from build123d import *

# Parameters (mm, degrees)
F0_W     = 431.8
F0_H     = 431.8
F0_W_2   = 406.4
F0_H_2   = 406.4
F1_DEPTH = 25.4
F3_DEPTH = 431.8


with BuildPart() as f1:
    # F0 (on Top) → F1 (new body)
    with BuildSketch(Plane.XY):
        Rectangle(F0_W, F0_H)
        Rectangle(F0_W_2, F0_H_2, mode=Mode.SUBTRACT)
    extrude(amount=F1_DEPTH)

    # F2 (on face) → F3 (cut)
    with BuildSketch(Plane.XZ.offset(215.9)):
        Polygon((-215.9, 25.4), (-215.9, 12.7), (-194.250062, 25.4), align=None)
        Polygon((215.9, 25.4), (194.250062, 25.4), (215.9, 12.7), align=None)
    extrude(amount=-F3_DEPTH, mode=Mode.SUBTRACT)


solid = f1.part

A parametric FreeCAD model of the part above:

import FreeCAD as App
import Part
import Sketcher
from FreeCAD import Vector
Q = App.Units.Quantity

doc = App.newDocument("Part")
body = doc.addObject("PartDesign::Body", "Body")

# Sketch on XY plane
sketch1 = body.newObject("Sketcher::SketchObject", "Sketch")
sketch1.AttachmentSupport = (doc.getObject("XY_Plane"), [""])
sketch1.MapMode = "FlatFace"
sketch1.addGeometry([
    Part.LineSegment(Vector(-216, 216, 0), Vector(-216, -216, 0)),  # 0
    Part.LineSegment(Vector(-216, -216, 0), Vector(216, -216, 0)),  # 1
    Part.LineSegment(Vector(216, -216, 0), Vector(216, 216, 0)),  # 2
    Part.LineSegment(Vector(216, 216, 0), Vector(-216, 216, 0)),  # 3
    Part.LineSegment(Vector(203, -203, 0), Vector(-203, -203, 0)),  # 4
    Part.LineSegment(Vector(-203, -203, 0), Vector(-203, 203, 0)),  # 5
    Part.LineSegment(Vector(-203, 203, 0), Vector(203, 203, 0)),  # 6
    Part.LineSegment(Vector(203, 203, 0), Vector(203, -203, 0)),  # 7
], False)
sketch1.addConstraint([
    Sketcher.Constraint("Coincident", 0, 2, 1, 1),
    Sketcher.Constraint("Coincident", 1, 2, 2, 1),
    Sketcher.Constraint("Coincident", 2, 2, 3, 1),
    Sketcher.Constraint("Coincident", 3, 2, 0, 1),
    Sketcher.Constraint("Coincident", 4, 2, 5, 1),
    Sketcher.Constraint("Coincident", 5, 2, 6, 1),
    Sketcher.Constraint("Coincident", 6, 2, 7, 1),
    Sketcher.Constraint("Coincident", 7, 2, 4, 1),
    Sketcher.Constraint("Vertical", 0),
    Sketcher.Constraint("Horizontal", 1),
    Sketcher.Constraint("Vertical", 2),
    Sketcher.Constraint("Horizontal", 3),
    Sketcher.Constraint("Horizontal", 4),
    Sketcher.Constraint("Vertical", 5),
    Sketcher.Constraint("Horizontal", 6),
    Sketcher.Constraint("Vertical", 7),
    Sketcher.Constraint("Symmetric", 0, 2, 2, 2, -1, 1),
    Sketcher.Constraint("Symmetric", 4, 2, 6, 2, -1, 1),
    Sketcher.Constraint("Equal", 3, 0),
    Sketcher.Constraint("Equal", 6, 5),
    Sketcher.Constraint("DistanceX", 1, 1, 1, 2, Q("17 in")),
    Sketcher.Constraint("DistanceX", 4, 2, 4, 1, Q("16 in")),
])
pad1 = body.newObject("PartDesign::Pad", "Pad")
pad1.Profile = sketch1
pad1.Length = Q("1 in")

# Sketch on XZ plane
sketch2 = body.newObject("Sketcher::SketchObject", "Sketch001")
sketch2.AttachmentSupport = (doc.getObject("XZ_Plane"), [""])
sketch2.MapMode = "FlatFace"
sketch2.AttachmentOffset = App.Placement(Vector(0, 0, 8.5 * 25.4), App.Rotation())
sketch2.addGeometry([
    Part.LineSegment(Vector(-216, 25, 0), Vector(-216, 13, 0)),  # 0
    Part.LineSegment(Vector(-216, 13, 0), Vector(-194, 25, 0)),  # 1
    Part.LineSegment(Vector(-194, 25, 0), Vector(-216, 25, 0)),  # 2
    Part.LineSegment(Vector(216, 25, 0), Vector(194, 25, 0)),  # 3
    Part.LineSegment(Vector(194, 25, 0), Vector(216, 13, 0)),  # 4
    Part.LineSegment(Vector(216, 13, 0), Vector(216, 25, 0)),  # 5
], False)
sketch2.addConstraint([
    Sketcher.Constraint("Coincident", 0, 2, 1, 1),
    Sketcher.Constraint("Coincident", 1, 2, 2, 1),
    Sketcher.Constraint("Coincident", 2, 2, 0, 1),
    Sketcher.Constraint("Coincident", 3, 2, 4, 1),
    Sketcher.Constraint("Coincident", 4, 2, 5, 1),
    Sketcher.Constraint("Coincident", 5, 2, 3, 1),
    Sketcher.Constraint("Vertical", 0),
    Sketcher.Constraint("Horizontal", 2),
    Sketcher.Constraint("Horizontal", 3),
    Sketcher.Constraint("Vertical", 5),
    Sketcher.Constraint("Symmetric", 1, 2, 3, 2, -2),
    Sketcher.Constraint("Symmetric", 0, 2, 4, 2, -2),
    Sketcher.Constraint("DistanceY", 0, 2, 0, 1, Q("0.5 in")),
    Sketcher.Constraint("DistanceY", -1, 1, 1, 2, Q("1 in")),
    Sketcher.Constraint("DistanceX", 0, 2, 4, 2, Q("17 in")),
    Sketcher.Constraint("DistanceX", 2, 2, 2, 1, Q("21.649938 mm")),
])
pocket1 = body.newObject("PartDesign::Pocket", "Pocket")
pocket1.Profile = sketch2
pocket1.Length = Q("17 in")

doc.recompute()
